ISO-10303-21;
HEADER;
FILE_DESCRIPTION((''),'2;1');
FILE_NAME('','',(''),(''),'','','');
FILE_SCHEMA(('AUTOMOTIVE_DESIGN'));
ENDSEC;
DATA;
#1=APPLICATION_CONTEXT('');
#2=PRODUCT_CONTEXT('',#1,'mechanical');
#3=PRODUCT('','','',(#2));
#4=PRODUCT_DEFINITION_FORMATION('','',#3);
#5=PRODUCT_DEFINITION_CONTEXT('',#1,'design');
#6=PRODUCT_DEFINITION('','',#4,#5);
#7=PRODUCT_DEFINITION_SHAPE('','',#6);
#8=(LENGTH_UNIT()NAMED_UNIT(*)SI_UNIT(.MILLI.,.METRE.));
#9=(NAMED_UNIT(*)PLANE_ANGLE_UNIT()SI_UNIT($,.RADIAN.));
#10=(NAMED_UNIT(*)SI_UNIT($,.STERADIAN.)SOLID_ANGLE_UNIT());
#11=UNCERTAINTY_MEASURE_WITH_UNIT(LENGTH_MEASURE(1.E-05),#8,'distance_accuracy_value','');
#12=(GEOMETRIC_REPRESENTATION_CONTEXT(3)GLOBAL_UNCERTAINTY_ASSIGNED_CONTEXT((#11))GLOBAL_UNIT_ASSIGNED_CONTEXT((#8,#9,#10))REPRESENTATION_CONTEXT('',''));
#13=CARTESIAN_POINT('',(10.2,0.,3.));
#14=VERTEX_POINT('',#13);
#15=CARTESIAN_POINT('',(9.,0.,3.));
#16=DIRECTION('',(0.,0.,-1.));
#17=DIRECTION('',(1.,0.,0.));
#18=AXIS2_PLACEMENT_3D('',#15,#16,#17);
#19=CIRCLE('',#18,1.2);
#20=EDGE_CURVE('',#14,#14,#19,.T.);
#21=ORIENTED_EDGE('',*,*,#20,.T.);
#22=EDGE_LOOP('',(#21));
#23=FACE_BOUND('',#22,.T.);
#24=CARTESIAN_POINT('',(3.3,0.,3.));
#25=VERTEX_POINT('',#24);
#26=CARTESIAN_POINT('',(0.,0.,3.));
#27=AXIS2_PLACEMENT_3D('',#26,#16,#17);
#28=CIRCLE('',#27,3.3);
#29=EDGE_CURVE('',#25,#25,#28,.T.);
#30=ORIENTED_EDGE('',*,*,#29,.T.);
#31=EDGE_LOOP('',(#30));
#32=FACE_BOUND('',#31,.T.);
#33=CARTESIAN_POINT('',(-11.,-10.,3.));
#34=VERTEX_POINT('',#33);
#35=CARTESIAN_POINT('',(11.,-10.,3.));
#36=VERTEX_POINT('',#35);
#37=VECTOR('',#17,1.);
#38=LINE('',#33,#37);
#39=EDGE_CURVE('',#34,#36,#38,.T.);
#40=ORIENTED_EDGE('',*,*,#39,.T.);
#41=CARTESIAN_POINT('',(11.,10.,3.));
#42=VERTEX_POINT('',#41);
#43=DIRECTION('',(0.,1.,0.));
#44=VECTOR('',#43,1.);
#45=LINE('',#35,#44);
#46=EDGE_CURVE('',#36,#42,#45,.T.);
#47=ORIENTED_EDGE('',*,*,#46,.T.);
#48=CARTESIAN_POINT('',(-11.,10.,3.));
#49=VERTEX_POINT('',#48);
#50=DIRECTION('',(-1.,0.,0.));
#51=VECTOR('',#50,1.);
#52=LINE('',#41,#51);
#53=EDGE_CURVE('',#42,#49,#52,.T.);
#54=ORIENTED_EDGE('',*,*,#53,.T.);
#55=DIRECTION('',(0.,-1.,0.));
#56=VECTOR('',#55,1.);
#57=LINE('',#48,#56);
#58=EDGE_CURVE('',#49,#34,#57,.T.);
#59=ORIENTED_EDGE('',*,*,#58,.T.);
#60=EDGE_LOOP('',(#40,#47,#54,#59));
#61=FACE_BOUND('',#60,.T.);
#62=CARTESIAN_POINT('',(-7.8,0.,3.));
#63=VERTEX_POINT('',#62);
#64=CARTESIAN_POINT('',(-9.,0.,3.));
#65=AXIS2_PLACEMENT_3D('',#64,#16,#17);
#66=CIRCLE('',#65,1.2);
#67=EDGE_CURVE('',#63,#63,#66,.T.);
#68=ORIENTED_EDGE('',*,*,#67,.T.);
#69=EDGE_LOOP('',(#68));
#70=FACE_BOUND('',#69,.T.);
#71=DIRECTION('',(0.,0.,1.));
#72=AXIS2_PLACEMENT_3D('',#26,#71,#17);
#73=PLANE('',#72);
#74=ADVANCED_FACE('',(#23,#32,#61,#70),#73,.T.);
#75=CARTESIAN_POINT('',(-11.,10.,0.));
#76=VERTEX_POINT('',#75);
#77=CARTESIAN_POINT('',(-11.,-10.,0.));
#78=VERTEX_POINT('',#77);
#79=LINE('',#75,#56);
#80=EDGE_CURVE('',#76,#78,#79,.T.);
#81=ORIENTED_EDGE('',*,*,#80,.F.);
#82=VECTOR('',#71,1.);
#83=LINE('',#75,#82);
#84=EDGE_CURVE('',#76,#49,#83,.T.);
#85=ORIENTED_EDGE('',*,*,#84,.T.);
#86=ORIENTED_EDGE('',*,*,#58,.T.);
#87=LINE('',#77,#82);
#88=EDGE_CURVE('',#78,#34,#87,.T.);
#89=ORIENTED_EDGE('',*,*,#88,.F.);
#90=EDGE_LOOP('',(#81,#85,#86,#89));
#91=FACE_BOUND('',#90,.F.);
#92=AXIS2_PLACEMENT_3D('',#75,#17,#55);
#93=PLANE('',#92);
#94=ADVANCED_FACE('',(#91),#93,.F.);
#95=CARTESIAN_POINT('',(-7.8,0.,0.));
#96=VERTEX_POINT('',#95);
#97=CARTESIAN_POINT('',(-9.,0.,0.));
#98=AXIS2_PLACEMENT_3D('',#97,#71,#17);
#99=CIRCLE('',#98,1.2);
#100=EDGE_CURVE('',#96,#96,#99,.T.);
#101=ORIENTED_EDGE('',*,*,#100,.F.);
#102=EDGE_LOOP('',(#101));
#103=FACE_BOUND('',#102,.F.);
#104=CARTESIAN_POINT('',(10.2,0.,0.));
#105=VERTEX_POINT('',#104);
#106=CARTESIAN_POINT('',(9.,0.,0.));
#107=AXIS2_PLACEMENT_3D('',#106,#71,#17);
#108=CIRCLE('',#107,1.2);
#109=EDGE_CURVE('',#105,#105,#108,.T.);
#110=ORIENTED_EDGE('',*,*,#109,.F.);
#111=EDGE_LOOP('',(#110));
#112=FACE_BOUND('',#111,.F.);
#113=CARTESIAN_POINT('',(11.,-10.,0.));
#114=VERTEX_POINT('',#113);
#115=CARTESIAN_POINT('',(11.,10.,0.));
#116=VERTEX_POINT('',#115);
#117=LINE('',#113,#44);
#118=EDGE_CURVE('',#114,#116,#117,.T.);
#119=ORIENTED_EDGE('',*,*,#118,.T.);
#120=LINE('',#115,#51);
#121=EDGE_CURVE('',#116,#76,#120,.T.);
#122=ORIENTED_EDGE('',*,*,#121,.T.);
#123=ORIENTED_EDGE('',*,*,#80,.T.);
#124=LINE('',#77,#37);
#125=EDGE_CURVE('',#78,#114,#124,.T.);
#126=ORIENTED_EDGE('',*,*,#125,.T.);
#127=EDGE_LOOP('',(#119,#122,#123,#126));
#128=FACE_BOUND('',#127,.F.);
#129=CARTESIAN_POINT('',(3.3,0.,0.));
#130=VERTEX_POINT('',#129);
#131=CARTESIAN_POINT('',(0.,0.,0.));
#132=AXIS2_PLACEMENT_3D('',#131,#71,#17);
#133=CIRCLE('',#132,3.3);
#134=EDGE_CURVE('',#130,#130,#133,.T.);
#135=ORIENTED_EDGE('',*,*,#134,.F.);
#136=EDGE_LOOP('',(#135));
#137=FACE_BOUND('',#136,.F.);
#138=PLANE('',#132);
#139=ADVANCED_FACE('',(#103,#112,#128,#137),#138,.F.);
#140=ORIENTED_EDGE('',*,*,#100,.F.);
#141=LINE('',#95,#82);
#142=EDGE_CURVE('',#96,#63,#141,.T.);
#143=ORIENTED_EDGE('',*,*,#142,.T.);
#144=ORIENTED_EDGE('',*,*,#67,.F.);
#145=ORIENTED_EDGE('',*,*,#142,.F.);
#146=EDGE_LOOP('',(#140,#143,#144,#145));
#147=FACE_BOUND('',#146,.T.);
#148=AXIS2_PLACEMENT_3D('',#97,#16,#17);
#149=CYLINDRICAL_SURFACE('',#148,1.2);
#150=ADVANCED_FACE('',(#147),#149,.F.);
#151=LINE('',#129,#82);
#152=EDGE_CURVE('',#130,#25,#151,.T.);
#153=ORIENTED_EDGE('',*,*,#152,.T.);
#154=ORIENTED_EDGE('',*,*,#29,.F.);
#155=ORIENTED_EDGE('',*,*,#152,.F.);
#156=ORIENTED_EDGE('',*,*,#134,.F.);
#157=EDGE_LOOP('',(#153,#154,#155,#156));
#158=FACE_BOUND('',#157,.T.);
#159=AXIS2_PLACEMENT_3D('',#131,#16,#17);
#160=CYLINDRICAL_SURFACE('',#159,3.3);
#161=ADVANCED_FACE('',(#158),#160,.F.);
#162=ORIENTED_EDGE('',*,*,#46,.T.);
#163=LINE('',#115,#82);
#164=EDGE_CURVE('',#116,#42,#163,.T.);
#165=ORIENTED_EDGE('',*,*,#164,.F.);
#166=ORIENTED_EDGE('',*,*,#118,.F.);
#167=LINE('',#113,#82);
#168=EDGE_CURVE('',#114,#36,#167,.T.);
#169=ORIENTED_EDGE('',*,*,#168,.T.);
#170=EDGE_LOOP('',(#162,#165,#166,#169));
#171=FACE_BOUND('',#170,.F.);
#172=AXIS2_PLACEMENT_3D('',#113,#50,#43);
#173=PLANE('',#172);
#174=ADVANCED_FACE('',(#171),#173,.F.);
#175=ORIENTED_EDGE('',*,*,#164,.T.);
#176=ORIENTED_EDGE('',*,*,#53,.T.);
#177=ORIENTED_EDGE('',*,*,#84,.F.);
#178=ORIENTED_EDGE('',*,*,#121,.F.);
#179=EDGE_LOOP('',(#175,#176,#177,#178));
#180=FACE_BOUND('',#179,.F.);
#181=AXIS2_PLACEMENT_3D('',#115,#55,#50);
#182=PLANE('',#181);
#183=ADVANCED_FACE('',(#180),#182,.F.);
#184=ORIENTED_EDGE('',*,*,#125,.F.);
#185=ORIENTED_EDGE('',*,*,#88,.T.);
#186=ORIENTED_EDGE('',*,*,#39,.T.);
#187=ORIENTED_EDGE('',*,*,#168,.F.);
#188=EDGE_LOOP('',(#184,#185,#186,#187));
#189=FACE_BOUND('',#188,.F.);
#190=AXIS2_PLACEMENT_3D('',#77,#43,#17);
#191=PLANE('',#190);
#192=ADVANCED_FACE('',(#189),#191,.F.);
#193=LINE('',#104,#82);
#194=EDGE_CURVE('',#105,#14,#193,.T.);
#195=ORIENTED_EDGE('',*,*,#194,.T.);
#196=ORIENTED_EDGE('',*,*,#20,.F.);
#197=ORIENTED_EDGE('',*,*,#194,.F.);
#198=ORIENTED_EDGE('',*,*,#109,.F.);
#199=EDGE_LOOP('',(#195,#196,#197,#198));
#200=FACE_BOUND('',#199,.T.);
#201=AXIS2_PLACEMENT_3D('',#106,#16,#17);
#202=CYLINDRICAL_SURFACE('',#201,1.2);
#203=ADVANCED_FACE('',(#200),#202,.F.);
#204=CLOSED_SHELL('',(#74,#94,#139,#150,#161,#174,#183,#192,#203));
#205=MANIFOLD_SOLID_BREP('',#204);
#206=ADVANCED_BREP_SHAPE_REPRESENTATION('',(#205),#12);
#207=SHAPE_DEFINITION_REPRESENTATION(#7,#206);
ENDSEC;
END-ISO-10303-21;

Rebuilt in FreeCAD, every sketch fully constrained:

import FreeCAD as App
import Part
import Sketcher
Q = App.Units.Quantity

doc = App.newDocument("Part")
body = doc.addObject("PartDesign::Body", "Body")

# Sketch on XY plane
sketch1 = body.newObject("Sketcher::SketchObject", "Sketch")
sketch1.AttachmentSupport = (doc.getObject("XY_Plane"), [""])
sketch1.MapMode = "FlatFace"
sketch1.addGeometry([
    Part.LineSegment(App.Vector(-11, 10, 0), App.Vector(-11, -10, 0)),
    Part.LineSegment(App.Vector(-11, -10, 0), App.Vector(11, -10, 0)),
    Part.LineSegment(App.Vector(11, -10, 0), App.Vector(11, 10, 0)),
    Part.LineSegment(App.Vector(11, 10, 0), App.Vector(-11, 10, 0)),
], False)
sketch1.addConstraint([
    Sketcher.Constraint("Coincident", 0, 2, 1, 1),
    Sketcher.Constraint("Coincident", 1, 2, 2, 1),
    Sketcher.Constraint("Coincident", 2, 2, 3, 1),
    Sketcher.Constraint("Coincident", 3, 2, 0, 1),
    Sketcher.Constraint("Vertical", 0),
    Sketcher.Constraint("Horizontal", 1),
    Sketcher.Constraint("Vertical", 2),
    Sketcher.Constraint("Horizontal", 3),
    Sketcher.Constraint("Symmetric", 0, 2, 2, 2, -1, 1),
    Sketcher.Constraint("DistanceX", 1, 1, 1, 2, Q("22 mm")),
    Sketcher.Constraint("DistanceY", 0, 2, 0, 1, Q("20 mm")),
])
pad1 = body.newObject("PartDesign::Pad", "Pad")
pad1.Profile = sketch1
pad1.Length = 3

# Sketch on XY plane
sketch2 = body.newObject("Sketcher::SketchObject", "Sketch001")
sketch2.AttachmentSupport = (doc.getObject("XY_Plane"), [""])
sketch2.MapMode = "FlatFace"
sketch2.addGeometry(Part.Circle(App.Vector(0, 0, 0), App.Vector(0, 0, 1), 3.3), False)
sketch2.addConstraint([
    Sketcher.Constraint("Coincident", 0, 3, -1, 1),
    Sketcher.Constraint("Diameter", 0, Q("6.6 mm")),
])
pocket1 = body.newObject("PartDesign::Pocket", "Pocket")
pocket1.Profile = sketch2
pocket1.Length = 3.2
pocket1.Reversed = True

# Sketch on XY plane
sketch3 = body.newObject("Sketcher::SketchObject", "Sketch002")
sketch3.AttachmentSupport = (doc.getObject("XY_Plane"), [""])
sketch3.MapMode = "FlatFace"
sketch3.addGeometry(Part.Circle(App.Vector(-9, 0, 0), App.Vector(0, 0, 1), 1.2), False)
sketch3.addConstraint([
    Sketcher.Constraint("PointOnObject", 0, 3, -1),
    Sketcher.Constraint("Diameter", 0, Q("2.4 mm")),
    Sketcher.Constraint("DistanceX", 0, 3, -1, 1, Q("9 mm")),
])
pocket2 = body.newObject("PartDesign::Pocket", "Pocket001")
pocket2.Profile = sketch3
pocket2.Length = 3.2
pocket2.Reversed = True

# Sketch on XY plane
sketch4 = body.newObject("Sketcher::SketchObject", "Sketch003")
sketch4.AttachmentSupport = (doc.getObject("XY_Plane"), [""])
sketch4.MapMode = "FlatFace"
sketch4.addGeometry(Part.Circle(App.Vector(9, 0, 0), App.Vector(0, 0, 1), 1.2), False)
sketch4.addConstraint([
    Sketcher.Constraint("PointOnObject", 0, 3, -1),
    Sketcher.Constraint("Diameter", 0, Q("2.4 mm")),
    Sketcher.Constraint("DistanceX", -1, 1, 0, 3, Q("9 mm")),
])
pocket3 = body.newObject("PartDesign::Pocket", "Pocket002")
pocket3.Profile = sketch4
pocket3.Length = 3.2
pocket3.Reversed = True

doc.recompute()
